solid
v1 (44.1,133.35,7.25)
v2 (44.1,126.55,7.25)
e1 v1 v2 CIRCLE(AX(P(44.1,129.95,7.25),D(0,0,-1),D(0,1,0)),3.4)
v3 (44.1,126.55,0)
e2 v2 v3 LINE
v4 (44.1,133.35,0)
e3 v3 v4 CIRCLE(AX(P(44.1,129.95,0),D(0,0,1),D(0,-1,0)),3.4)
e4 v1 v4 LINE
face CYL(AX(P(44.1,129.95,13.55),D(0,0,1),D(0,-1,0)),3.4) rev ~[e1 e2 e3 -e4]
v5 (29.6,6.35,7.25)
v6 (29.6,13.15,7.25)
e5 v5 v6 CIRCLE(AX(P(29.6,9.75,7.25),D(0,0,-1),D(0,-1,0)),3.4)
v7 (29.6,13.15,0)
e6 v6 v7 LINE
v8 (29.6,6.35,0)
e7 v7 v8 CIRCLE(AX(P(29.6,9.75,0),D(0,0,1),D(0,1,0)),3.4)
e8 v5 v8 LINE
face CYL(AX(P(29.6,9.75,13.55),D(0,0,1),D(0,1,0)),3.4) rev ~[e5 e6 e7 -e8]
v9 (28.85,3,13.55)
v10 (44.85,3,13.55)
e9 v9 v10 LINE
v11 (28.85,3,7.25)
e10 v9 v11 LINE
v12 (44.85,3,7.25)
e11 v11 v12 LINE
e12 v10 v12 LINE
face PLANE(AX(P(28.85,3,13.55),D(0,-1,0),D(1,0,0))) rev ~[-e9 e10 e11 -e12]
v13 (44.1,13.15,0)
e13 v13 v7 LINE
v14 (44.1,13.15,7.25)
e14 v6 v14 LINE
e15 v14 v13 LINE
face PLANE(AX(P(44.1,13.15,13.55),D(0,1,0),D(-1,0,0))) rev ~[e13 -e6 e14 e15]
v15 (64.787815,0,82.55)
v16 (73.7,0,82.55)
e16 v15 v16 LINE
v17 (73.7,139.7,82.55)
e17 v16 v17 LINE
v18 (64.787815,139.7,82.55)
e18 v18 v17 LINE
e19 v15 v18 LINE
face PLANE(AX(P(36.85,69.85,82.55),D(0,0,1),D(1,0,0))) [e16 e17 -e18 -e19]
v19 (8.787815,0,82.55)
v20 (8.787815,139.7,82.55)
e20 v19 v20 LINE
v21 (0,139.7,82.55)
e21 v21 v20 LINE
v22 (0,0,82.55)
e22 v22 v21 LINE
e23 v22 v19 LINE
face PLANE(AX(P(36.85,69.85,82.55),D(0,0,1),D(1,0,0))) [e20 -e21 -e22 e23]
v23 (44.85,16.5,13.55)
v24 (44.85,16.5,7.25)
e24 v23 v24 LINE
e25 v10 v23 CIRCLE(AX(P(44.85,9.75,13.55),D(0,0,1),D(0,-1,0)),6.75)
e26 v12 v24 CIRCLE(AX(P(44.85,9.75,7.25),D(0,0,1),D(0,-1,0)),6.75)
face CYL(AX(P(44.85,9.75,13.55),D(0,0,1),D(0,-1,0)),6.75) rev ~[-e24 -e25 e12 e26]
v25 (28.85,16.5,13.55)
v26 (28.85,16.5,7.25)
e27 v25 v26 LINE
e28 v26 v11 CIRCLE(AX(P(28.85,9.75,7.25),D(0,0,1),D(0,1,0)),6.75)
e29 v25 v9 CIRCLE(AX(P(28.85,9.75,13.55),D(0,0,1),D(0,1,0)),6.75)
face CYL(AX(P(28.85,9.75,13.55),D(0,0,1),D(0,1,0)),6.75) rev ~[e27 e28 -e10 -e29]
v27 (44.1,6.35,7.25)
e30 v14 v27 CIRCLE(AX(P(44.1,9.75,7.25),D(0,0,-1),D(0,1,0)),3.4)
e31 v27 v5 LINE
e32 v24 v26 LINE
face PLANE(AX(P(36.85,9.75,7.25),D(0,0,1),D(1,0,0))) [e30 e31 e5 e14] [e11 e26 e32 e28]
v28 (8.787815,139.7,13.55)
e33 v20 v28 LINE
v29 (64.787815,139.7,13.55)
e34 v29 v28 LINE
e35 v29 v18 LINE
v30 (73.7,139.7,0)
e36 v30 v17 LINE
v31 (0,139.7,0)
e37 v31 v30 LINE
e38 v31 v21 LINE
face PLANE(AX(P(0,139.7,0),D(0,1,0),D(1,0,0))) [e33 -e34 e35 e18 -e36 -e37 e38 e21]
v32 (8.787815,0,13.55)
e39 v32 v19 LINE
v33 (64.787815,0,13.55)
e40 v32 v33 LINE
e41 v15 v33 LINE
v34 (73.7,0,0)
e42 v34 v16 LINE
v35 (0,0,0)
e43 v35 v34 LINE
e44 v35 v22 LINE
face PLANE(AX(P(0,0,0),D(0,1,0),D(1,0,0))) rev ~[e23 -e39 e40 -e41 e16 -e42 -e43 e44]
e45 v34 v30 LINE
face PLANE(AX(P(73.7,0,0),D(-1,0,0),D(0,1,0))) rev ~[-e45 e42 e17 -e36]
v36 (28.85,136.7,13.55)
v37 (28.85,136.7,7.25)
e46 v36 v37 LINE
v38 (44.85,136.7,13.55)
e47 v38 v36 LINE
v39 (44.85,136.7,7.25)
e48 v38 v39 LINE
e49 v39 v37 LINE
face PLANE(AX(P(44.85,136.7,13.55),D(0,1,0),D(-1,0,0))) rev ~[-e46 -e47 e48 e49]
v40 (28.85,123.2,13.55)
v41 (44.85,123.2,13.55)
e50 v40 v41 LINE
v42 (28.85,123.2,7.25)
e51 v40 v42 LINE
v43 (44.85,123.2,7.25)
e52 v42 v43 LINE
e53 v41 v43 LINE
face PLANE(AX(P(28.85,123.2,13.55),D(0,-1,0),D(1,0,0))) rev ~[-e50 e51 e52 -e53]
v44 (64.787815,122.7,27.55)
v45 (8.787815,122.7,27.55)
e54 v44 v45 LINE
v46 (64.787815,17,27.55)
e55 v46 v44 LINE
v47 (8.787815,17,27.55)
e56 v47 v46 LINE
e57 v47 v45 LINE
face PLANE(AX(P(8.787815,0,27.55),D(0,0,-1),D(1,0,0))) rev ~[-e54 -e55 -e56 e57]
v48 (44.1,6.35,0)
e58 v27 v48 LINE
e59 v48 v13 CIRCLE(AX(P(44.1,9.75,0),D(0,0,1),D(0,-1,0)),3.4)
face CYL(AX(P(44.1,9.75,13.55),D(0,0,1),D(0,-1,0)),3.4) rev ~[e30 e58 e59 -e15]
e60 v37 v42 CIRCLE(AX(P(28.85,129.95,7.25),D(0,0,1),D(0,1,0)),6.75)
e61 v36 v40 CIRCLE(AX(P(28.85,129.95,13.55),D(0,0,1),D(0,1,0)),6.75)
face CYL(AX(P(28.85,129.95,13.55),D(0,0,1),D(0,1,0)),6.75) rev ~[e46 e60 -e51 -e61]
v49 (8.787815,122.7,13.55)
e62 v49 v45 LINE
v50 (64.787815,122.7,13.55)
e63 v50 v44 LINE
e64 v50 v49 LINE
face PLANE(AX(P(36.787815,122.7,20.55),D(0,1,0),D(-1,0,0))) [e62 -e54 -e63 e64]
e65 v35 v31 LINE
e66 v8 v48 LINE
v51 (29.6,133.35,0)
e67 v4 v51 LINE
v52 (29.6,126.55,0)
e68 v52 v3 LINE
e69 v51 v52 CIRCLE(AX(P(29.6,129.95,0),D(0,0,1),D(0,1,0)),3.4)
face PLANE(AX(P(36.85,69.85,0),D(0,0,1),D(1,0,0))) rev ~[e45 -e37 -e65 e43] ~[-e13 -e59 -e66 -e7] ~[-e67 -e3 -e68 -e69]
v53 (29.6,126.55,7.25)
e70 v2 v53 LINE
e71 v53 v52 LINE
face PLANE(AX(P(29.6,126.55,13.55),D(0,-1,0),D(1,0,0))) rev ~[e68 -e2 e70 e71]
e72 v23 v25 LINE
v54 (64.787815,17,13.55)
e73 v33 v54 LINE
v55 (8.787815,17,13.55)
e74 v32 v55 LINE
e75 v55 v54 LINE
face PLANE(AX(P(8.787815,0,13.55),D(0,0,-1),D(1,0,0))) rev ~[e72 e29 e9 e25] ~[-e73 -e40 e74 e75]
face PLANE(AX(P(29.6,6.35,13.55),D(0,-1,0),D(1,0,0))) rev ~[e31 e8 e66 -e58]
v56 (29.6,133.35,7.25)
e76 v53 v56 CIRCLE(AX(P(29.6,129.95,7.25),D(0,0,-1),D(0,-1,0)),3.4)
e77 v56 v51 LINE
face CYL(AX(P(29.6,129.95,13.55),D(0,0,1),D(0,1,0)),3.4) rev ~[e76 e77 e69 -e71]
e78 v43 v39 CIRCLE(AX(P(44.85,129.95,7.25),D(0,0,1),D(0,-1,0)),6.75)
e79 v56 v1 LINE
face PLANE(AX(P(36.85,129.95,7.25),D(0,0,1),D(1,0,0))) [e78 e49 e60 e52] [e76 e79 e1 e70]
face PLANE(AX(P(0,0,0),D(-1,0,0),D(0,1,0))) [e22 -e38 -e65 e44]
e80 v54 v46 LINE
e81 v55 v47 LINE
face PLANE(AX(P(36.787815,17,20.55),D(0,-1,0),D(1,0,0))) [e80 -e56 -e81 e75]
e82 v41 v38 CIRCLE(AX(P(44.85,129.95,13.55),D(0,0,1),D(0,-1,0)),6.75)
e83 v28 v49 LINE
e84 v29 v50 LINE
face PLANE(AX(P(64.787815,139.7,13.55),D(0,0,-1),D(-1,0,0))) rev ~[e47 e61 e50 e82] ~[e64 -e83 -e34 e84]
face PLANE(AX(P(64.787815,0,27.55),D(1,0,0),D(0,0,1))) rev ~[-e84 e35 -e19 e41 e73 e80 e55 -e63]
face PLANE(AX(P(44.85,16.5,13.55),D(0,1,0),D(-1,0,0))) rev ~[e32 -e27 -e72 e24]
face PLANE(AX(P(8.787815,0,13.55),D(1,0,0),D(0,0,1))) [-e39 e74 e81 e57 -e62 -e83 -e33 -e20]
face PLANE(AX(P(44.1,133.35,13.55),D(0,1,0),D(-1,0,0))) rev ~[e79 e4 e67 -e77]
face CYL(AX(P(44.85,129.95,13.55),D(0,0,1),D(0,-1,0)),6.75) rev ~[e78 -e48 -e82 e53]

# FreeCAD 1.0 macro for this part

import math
import FreeCAD as App
import Part
import Sketcher

V = App.Vector

doc = App.newDocument("Part")
body = doc.addObject("PartDesign::Body", "Body")

# Sketch on XY plane
sketch1 = doc.addObject("Sketcher::SketchObject", "Sketch")
body.addObject(sketch1)
sketch1.AttachmentSupport = (doc.XY_Plane, [""])
sketch1.MapMode = "FlatFace"
sketch1.addGeometry([
    Part.LineSegment(V(0, 140, 0), V(0, 0, 0)),
    Part.LineSegment(V(0, 0, 0), V(74, 0, 0)),
    Part.LineSegment(V(74, 0, 0), V(74, 140, 0)),
    Part.LineSegment(V(74, 140, 0), V(0, 140, 0)),
], False)
sketch1.addConstraint([
    Sketcher.Constraint("Coincident", 0, 2, 1, 1),
    Sketcher.Constraint("Coincident", 1, 2, 2, 1),
    Sketcher.Constraint("Coincident", 2, 2, 3, 1),
    Sketcher.Constraint("Coincident", 3, 2, 0, 1),
    Sketcher.Constraint("Vertical", 0),
    Sketcher.Constraint("Horizontal", 1),
    Sketcher.Constraint("Vertical", 2),
    Sketcher.Constraint("Horizontal", 3),
    Sketcher.Constraint("Coincident", 0, 2, -1, 1),
    Sketcher.Constraint("DistanceX", 1, 1, 1, 2, 73.7),
    Sketcher.Constraint("DistanceY", 0, 2, 0, 1, 139.7),
])
pad1 = doc.addObject("PartDesign::Pad", "Pad")
body.addObject(pad1)
pad1.Profile = sketch1
pad1.Length = 82.55

# Sketch on XZ plane
sketch2 = doc.addObject("Sketcher::SketchObject", "Sketch001")
body.addObject(sketch2)
sketch2.AttachmentSupport = (doc.XZ_Plane, [""])
sketch2.MapMode = "FlatFace"
sketch2.addGeometry([
    Part.LineSegment(V(9, 83, 0), V(9, 28, 0)),
    Part.LineSegment(V(9, 28, 0), V(65, 28, 0)),
    Part.LineSegment(V(65, 28, 0), V(65, 83, 0)),
    Part.LineSegment(V(65, 83, 0), V(9, 83, 0)),
], False)
sketch2.addConstraint([
    Sketcher.Constraint("Coincident", 0, 2, 1, 1),
    Sketcher.Constraint("Coincident", 1, 2, 2, 1),
    Sketcher.Constraint("Coincident", 2, 2, 3, 1),
    Sketcher.Constraint("Coincident", 3, 2, 0, 1),
    Sketcher.Constraint("Vertical", 0),
    Sketcher.Constraint("Horizontal", 1),
    Sketcher.Constraint("Vertical", 2),
    Sketcher.Constraint("Horizontal", 3),
    Sketcher.Constraint("DistanceX", 1, 1, 1, 2, 56.0),
    Sketcher.Constraint("DistanceY", 0, 2, 0, 1, 55.0),
    Sketcher.Constraint("DistanceY", -1, 1, 0, 2, 27.55),
    Sketcher.Constraint("DistanceX", -1, 1, 0, 2, 8.787815),
])
pocket1 = doc.addObject("PartDesign::Pocket", "Pocket")
body.addObject(pocket1)
pocket1.Profile = sketch2
pocket1.Type = "ThroughAll"

# Sketch on XZ plane
sketch3 = doc.addObject("Sketcher::SketchObject", "Sketch002")
body.addObject(sketch3)
sketch3.AttachmentSupport = (doc.XZ_Plane, [""])
sketch3.MapMode = "FlatFace"
sketch3.addGeometry([
    Part.LineSegment(V(9, 28, 0), V(9, 14, 0)),
    Part.LineSegment(V(9, 14, 0), V(65, 14, 0)),
    Part.LineSegment(V(65, 14, 0), V(65, 28, 0)),
    Part.LineSegment(V(65, 28, 0), V(9, 28, 0)),
], False)
sketch3.addConstraint([
    Sketcher.Constraint("Coincident", 0, 2, 1, 1),
    Sketcher.Constraint("Coincident", 1, 2, 2, 1),
    Sketcher.Constraint("Coincident", 2, 2, 3, 1),
    Sketcher.Constraint("Coincident", 3, 2, 0, 1),
    Sketcher.Constraint("Vertical", 0),
    Sketcher.Constraint("Horizontal", 1),
    Sketcher.Constraint("Vertical", 2),
    Sketcher.Constraint("Horizontal", 3),
    Sketcher.Constraint("DistanceX", 1, 1, 1, 2, 56.0),
    Sketcher.Constraint("DistanceY", 0, 2, 0, 1, 14.0),
    Sketcher.Constraint("DistanceY", -1, 1, 0, 2, 13.55),
    Sketcher.Constraint("DistanceX", -1, 1, 0, 2, 8.787815),
])
pocket2 = doc.addObject("PartDesign::Pocket", "Pocket001")
body.addObject(pocket2)
pocket2.Profile = sketch3
pocket2.Length = 17

# Sketch on XZ plane
sketch4 = doc.addObject("Sketcher::SketchObject", "Sketch003")
body.addObject(sketch4)
sketch4.AttachmentSupport = (doc.XZ_Plane, [""])
sketch4.MapMode = "FlatFace"
sketch4.AttachmentOffset = App.Placement(V(0, 0, -139.7), App.Rotation())
sketch4.addGeometry([
    Part.LineSegment(V(65, 28, 0), V(65, 14, 0)),
    Part.LineSegment(V(65, 14, 0), V(9, 14, 0)),
    Part.LineSegment(V(9, 14, 0), V(9, 28, 0)),
    Part.LineSegment(V(9, 28, 0), V(65, 28, 0)),
], False)
sketch4.addConstraint([
    Sketcher.Constraint("Coincident", 0, 2, 1, 1),
    Sketcher.Constraint("Coincident", 1, 2, 2, 1),
    Sketcher.Constraint("Coincident", 2, 2, 3, 1),
    Sketcher.Constraint("Coincident", 3, 2, 0, 1),
    Sketcher.Constraint("Vertical", 0),
    Sketcher.Constraint("Horizontal", 1),
    Sketcher.Constraint("Vertical", 2),
    Sketcher.Constraint("Horizontal", 3),
    Sketcher.Constraint("DistanceX", 1, 2, 1, 1, 56.0),
    Sketcher.Constraint("DistanceY", 0, 2, 0, 1, 14.0),
    Sketcher.Constraint("DistanceY", -1, 1, 0, 2, 13.55),
    Sketcher.Constraint("DistanceX", -1, 1, 0, 2, 64.787815),
])
pocket3 = doc.addObject("PartDesign::Pocket", "Pocket002")
body.addObject(pocket3)
pocket3.Profile = sketch4
pocket3.Length = 17
pocket3.Reversed = True

# Sketch on XY plane
sketch5 = doc.addObject("Sketcher::SketchObject", "Sketch004")
body.addObject(sketch5)
sketch5.AttachmentSupport = (doc.XY_Plane, [""])
sketch5.MapMode = "FlatFace"
sketch5.AttachmentOffset = App.Placement(V(0, 0, 13.55), App.Rotation())
sketch5.addGeometry([
    Part.LineSegment(V(44.9, 136.7, 0), V(28.9, 136.7, 0)),  # 0
    Part.ArcOfCircle(Part.Circle(V(28.9, 129.9, 0), V(0, 0, 1), 6.8), math.radians(90), math.radians(270)),  # 1
    Part.LineSegment(V(28.9, 123.2, 0), V(44.9, 123.2, 0)),  # 2
    Part.ArcOfCircle(Part.Circle(V(44.9, 129.9, 0), V(0, 0, 1), 6.8), math.radians(-90), math.radians(90)),  # 3
    Part.LineSegment(V(44.1, 126.5, 0), V(29.6, 126.5, 0)),  # 4
    Part.ArcOfCircle(Part.Circle(V(29.6, 129.9, 0), V(0, 0, 1), 3.4), math.radians(90), math.radians(270)),  # 5
    Part.LineSegment(V(29.6, 133.3, 0), V(44.1, 133.3, 0)),  # 6
    Part.ArcOfCircle(Part.Circle(V(44.1, 129.9, 0), V(0, 0, 1), 3.4), math.radians(-90), math.radians(90)),  # 7
    Part.ArcOfCircle(Part.Circle(V(44.9, 9.8, 0), V(0, 0, 1), 6.8), math.radians(-90), math.radians(90)),  # 8
    Part.LineSegment(V(44.9, 16.5, 0), V(28.9, 16.5, 0)),  # 9
    Part.ArcOfCircle(Part.Circle(V(28.9, 9.8, 0), V(0, 0, 1), 6.8), math.radians(90), math.radians(270)),  # 10
    Part.LineSegment(V(28.9, 3, 0), V(44.9, 3, 0)),  # 11
    Part.ArcOfCircle(Part.Circle(V(29.6, 9.8, 0), V(0, 0, 1), 3.4), math.radians(90), math.radians(270)),  # 12
    Part.LineSegment(V(29.6, 13.2, 0), V(44.1, 13.2, 0)),  # 13
    Part.ArcOfCircle(Part.Circle(V(44.1, 9.8, 0), V(0, 0, 1), 3.4), math.radians(-90), math.radians(90)),  # 14
    Part.LineSegment(V(44.1, 6.3, 0), V(29.6, 6.3, 0)),  # 15
], False)
sketch5.addConstraint([
    Sketcher.Constraint("Tangent", 0, 2, 1, 1),
    Sketcher.Constraint("Tangent", 1, 2, 2, 1),
    Sketcher.Constraint("Tangent", 2, 2, 3, 1),
    Sketcher.Constraint("Tangent", 3, 2, 0, 1),
    Sketcher.Constraint("Tangent", 4, 2, 5, 2),
    Sketcher.Constraint("Tangent", 5, 1, 6, 1),
    Sketcher.Constraint("Tangent", 6, 2, 7, 2),
    Sketcher.Constraint("Tangent", 7, 1, 4, 1),
    Sketcher.Constraint("Tangent", 8, 2, 9, 1),
    Sketcher.Constraint("Tangent", 9, 2, 10, 1),
    Sketcher.Constraint("Tangent", 10, 2, 11, 1),
    Sketcher.Constraint("Tangent", 11, 2, 8, 1),
    Sketcher.Constraint("Tangent", 12, 1, 13, 1),
    Sketcher.Constraint("Tangent", 13, 2, 14, 2),
    Sketcher.Constraint("Tangent", 14, 1, 15, 1),
    Sketcher.Constraint("Tangent", 15, 2, 12, 2),
    Sketcher.Constraint("Horizontal", 0),
    Sketcher.Constraint("Horizontal", 2),
    Sketcher.Constraint("Horizontal", 4),
    Sketcher.Constraint("Horizontal", 6),
    Sketcher.Constraint("Horizontal", 9),
    Sketcher.Constraint("Horizontal", 11),
    Sketcher.Constraint("Horizontal", 13),
    Sketcher.Constraint("Horizontal", 15),
    Sketcher.Constraint("Equal", 3, 8),
    Sketcher.Constraint("Equal", 7, 12),
    Sketcher.Constraint("Horizontal", 3, 3, 5, 3),
    Sketcher.Constraint("Horizontal", 10, 3, 12, 3),
    Sketcher.Constraint("Vertical", 3, 3, 8, 3),
    Sketcher.Constraint("Vertical", 1, 3, 10, 3),
    Sketcher.Constraint("Vertical", 5, 3, 12, 3),
    Sketcher.Constraint("Vertical", 7, 3, 14, 3),
    Sketcher.Constraint("Radius", 5, 3.4),
    Sketcher.Constraint("DistanceX", 0, 2, 0, 1, 16.0),
    Sketcher.Constraint("Radius", 1, 6.75),
    Sketcher.Constraint("DistanceX", 4, 2, 4, 1, 14.5),
    Sketcher.Constraint("DistanceY", -1, 1, 10, 2, 3.0),
    Sketcher.Constraint("DistanceX", -1, 1, 5, 3, 29.6),
    Sketcher.Constraint("DistanceY", -1, 1, 0, 2, 136.7),
    Sketcher.Constraint("DistanceX", -1, 1, 1, 3, 28.85),
])
pocket4 = doc.addObject("PartDesign::Pocket", "Pocket003")
body.addObject(pocket4)
pocket4.Profile = sketch5
pocket4.Length = 6.3

# Sketch on XY plane
sketch6 = doc.addObject("Sketcher::SketchObject", "Sketch005")
body.addObject(sketch6)
sketch6.AttachmentSupport = (doc.XY_Plane, [""])
sketch6.MapMode = "FlatFace"
sketch6.AttachmentOffset = App.Placement(V(0, 0, 13.55), App.Rotation())
sketch6.addGeometry([
    Part.LineSegment(V(29.6, 126.5, 0), V(44.1, 126.5, 0)),  # 0
    Part.ArcOfCircle(Part.Circle(V(44.1, 129.9, 0), V(0, 0, 1), 3.4), math.radians(-90), math.radians(90)),  # 1
    Part.LineSegment(V(44.1, 133.3, 0), V(29.6, 133.3, 0)),  # 2
    Part.ArcOfCircle(Part.Circle(V(29.6, 129.9, 0), V(0, 0, 1), 3.4), math.radians(90), math.radians(270)),  # 3
    Part.ArcOfCircle(Part.Circle(V(44.1, 9.8, 0), V(0, 0, 1), 3.4), math.radians(-90), math.radians(90)),  # 4
    Part.LineSegment(V(44.1, 13.2, 0), V(29.6, 13.2, 0)),  # 5
    Part.ArcOfCircle(Part.Circle(V(29.6, 9.8, 0), V(0, 0, 1), 3.4), math.radians(90), math.radians(270)),  # 6
    Part.LineSegment(V(29.6, 6.3, 0), V(44.1, 6.3, 0)),  # 7
], False)
sketch6.addConstraint([
    Sketcher.Constraint("Tangent", 0, 2, 1, 1),
    Sketcher.Constraint("Tangent", 1, 2, 2, 1),
    Sketcher.Constraint("Tangent", 2, 2, 3, 1),
    Sketcher.Constraint("Tangent", 3, 2, 0, 1),
    Sketcher.Constraint("Tangent", 4, 2, 5, 1),
    Sketcher.Constraint("Tangent", 5, 2, 6, 1),
    Sketcher.Constraint("Tangent", 6, 2, 7, 1),
    Sketcher.Constraint("Tangent", 7, 2, 4, 1),
    Sketcher.Constraint("Horizontal", 0),
    Sketcher.Constraint("Horizontal", 2),
    Sketcher.Constraint("Horizontal", 5),
    Sketcher.Constraint("Horizontal", 7),
    Sketcher.Constraint("Equal", 3, 4),
    Sketcher.Constraint("Vertical", 1, 3, 4, 3),
    Sketcher.Constraint("Vertical", 3, 3, 6, 3),
    Sketcher.Constraint("Radius", 1, 3.4),
    Sketcher.Constraint("DistanceX", 0, 1, 0, 2, 14.5),
    Sketcher.Constraint("DistanceX", -1, 1, 1, 3, 44.1),
    Sketcher.Constraint("DistanceY", 4, 3, 1, 3, 120.2),
    Sketcher.Constraint("DistanceY", -1, 1, 1, 3, 129.95),
])
pocket5 = doc.addObject("PartDesign::Pocket", "Pocket004")
body.addObject(pocket5)
pocket5.Profile = sketch6
pocket5.Type = "ThroughAll"

doc.recompute()
